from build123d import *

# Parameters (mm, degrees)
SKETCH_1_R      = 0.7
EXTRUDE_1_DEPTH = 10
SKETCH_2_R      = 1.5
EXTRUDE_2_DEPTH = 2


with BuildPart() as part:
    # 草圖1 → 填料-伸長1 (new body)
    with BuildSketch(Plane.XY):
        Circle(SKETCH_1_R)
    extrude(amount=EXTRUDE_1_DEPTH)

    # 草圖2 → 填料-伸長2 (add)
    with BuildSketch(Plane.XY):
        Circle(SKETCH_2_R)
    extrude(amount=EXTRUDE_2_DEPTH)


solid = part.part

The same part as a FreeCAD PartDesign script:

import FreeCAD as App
import Part
import Sketcher
from FreeCAD import Vector

doc = App.newDocument("Part")
body = doc.addObject("PartDesign::Body", "Body")

sketch1 = body.newObject("Sketcher::SketchObject", "Sketch")
sketch1.AttachmentSupport = (doc.getObject("XY_Plane"), [""])
sketch1.MapMode = "FlatFace"
sketch1.addGeometry(Part.Circle(Vector(0, 0, 0), Vector(0, 0, 1), 0.7), False)
sketch1.addConstraint(Sketcher.Constraint("Coincident", 0, 3, -1, 1))
sketch1.addConstraint(Sketcher.Constraint("Diameter", 0, 1.4))
pad1 = body.newObject("PartDesign::Pad", "Pad")
pad1.Profile = sketch1
pad1.Length = 10

sketch2 = body.newObject("Sketcher::SketchObject", "Sketch001")
sketch2.AttachmentSupport = (doc.getObject("XY_Plane"), [""])
sketch2.MapMode = "FlatFace"
sketch2.addGeometry(Part.Circle(Vector(0, 0, 0), Vector(0, 0, 1), 1.5), False)
sketch2.addConstraint(Sketcher.Constraint("Coincident", 0, 3, -1, 1))
sketch2.addConstraint(Sketcher.Constraint("Diameter", 0, 3.0))
pad2 = body.newObject("PartDesign::Pad", "Pad001")
pad2.Profile = sketch2
pad2.Length = 2

doc.recompute()
